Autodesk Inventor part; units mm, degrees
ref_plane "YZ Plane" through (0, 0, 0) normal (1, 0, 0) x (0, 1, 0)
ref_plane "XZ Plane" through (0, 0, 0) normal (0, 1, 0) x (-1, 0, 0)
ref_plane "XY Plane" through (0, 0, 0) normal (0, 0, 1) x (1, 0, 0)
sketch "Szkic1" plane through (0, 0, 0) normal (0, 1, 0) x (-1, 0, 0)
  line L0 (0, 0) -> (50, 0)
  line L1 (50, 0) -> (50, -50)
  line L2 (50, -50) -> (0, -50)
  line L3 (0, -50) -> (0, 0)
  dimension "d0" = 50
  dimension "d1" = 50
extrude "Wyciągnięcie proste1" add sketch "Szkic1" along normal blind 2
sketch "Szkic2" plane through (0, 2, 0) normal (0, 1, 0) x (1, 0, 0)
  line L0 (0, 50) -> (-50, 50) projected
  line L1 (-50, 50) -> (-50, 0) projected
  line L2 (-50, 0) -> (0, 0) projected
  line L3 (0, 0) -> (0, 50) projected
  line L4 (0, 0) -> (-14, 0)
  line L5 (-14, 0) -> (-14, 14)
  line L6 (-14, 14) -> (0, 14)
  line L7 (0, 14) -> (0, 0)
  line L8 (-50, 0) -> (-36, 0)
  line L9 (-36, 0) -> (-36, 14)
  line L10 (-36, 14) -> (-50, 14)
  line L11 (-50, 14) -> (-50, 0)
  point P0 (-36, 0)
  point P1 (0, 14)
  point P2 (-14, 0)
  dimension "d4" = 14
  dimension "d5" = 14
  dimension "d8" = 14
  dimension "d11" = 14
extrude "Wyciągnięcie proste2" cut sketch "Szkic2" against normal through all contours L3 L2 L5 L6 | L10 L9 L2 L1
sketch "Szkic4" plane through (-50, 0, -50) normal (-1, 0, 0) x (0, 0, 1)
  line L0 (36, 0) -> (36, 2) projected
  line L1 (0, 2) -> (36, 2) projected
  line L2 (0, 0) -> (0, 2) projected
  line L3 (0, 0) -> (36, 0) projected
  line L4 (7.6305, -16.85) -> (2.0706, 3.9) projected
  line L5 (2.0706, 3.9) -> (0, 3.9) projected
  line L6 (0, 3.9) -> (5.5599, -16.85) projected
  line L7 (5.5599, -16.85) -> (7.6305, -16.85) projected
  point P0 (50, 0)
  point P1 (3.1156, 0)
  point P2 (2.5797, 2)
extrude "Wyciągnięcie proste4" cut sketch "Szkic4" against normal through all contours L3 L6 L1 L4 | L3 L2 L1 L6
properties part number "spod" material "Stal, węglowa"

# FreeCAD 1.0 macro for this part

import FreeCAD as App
import Part
import Sketcher
from FreeCAD import Vector
Q = App.Units.Quantity

doc = App.newDocument("Part")
body = doc.addObject("PartDesign::Body", "Body")

sketch1 = body.newObject("Sketcher::SketchObject", "Sketch")
sketch1.AttachmentSupport = (doc.getObject("XZ_Plane"), [""])
sketch1.MapMode = "FlatFace"
sketch1.addGeometry([
    Part.LineSegment(Vector(-50, 0, 0), Vector(0, 0, 0)),
    Part.LineSegment(Vector(0, 0, 0), Vector(0, -50, 0)),
    Part.LineSegment(Vector(0, -50, 0), Vector(-50, -50, 0)),
    Part.LineSegment(Vector(-50, -50, 0), Vector(-50, 0, 0)),
], False)
sketch1.addConstraint([
    Sketcher.Constraint("Coincident", 0, 2, 1, 1),
    Sketcher.Constraint("Coincident", 1, 2, 2, 1),
    Sketcher.Constraint("Coincident", 2, 2, 3, 1),
    Sketcher.Constraint("Coincident", 3, 2, 0, 1),
    Sketcher.Constraint("Horizontal", 0),
    Sketcher.Constraint("Vertical", 1),
    Sketcher.Constraint("Horizontal", 2),
    Sketcher.Constraint("Vertical", 3),
    Sketcher.Constraint("Coincident", 0, 2, -1, 1),
    Sketcher.Constraint("Equal", 2, 1),
    Sketcher.Constraint("DistanceX", 0, 1, 0, 2, Q("50 mm")),
])
pad1 = body.newObject("PartDesign::Pad", "Pad")
pad1.Profile = sketch1
pad1.Length = 2
pad1.Reversed = True

sketch2 = body.newObject("Sketcher::SketchObject", "Sketch001")
sketch2.AttachmentSupport = (doc.getObject("XZ_Plane"), [""])
sketch2.MapMode = "FlatFace"
sketch2.AttachmentOffset = App.Placement(Vector(0, 0, -2), App.Rotation())
sketch2.addGeometry([
    Part.LineSegment(Vector(0, 0, 0), Vector(0, -14, 0)),
    Part.LineSegment(Vector(0, -14, 0), Vector(-14, -14, 0)),
    Part.LineSegment(Vector(-14, -14, 0), Vector(-14, 0, 0)),
    Part.LineSegment(Vector(-14, 0, 0), Vector(0, 0, 0)),
    Part.LineSegment(Vector(-36, -14, 0), Vector(-50, -14, 0)),
    Part.LineSegment(Vector(-50, -14, 0), Vector(-50, 0, 0)),
    Part.LineSegment(Vector(-50, 0, 0), Vector(-36, 0, 0)),
    Part.LineSegment(Vector(-36, 0, 0), Vector(-36, -14, 0)),
], False)
sketch2.addConstraint([
    Sketcher.Constraint("Coincident", 0, 2, 1, 1),
    Sketcher.Constraint("Coincident", 1, 2, 2, 1),
    Sketcher.Constraint("Coincident", 2, 2, 3, 1),
    Sketcher.Constraint("Coincident", 3, 2, 0, 1),
    Sketcher.Constraint("Coincident", 4, 2, 5, 1),
    Sketcher.Constraint("Coincident", 5, 2, 6, 1),
    Sketcher.Constraint("Coincident", 6, 2, 7, 1),
    Sketcher.Constraint("Coincident", 7, 2, 4, 1),
    Sketcher.Constraint("Vertical", 0),
    Sketcher.Constraint("Horizontal", 1),
    Sketcher.Constraint("Vertical", 2),
    Sketcher.Constraint("Horizontal", 3),
    Sketcher.Constraint("Horizontal", 4),
    Sketcher.Constraint("Vertical", 5),
    Sketcher.Constraint("Horizontal", 6),
    Sketcher.Constraint("Vertical", 7),
    Sketcher.Constraint("Coincident", 3, 2, -1, 1),
    Sketcher.Constraint("PointOnObject", 5, 2, -1),
    Sketcher.Constraint("Horizontal", 1, 2, 4, 2),
    Sketcher.Constraint("Equal", 3, 4),
    Sketcher.Constraint("Equal", 6, 0),
    Sketcher.Constraint("DistanceX", 1, 2, 1, 1, Q("14 mm")),
    Sketcher.Constraint("DistanceX", 4, 2, -1, 1, Q("50 mm")),
])
pocket1 = body.newObject("PartDesign::Pocket", "Pocket")
pocket1.Profile = sketch2
pocket1.Type = "ThroughAll"
pocket1.Reversed = True

sketch3 = body.newObject("Sketcher::SketchObject", "Sketch002")
sketch3.AttachmentSupport = (doc.getObject("YZ_Plane"), [""])
sketch3.MapMode = "FlatFace"
sketch3.AttachmentOffset = App.Placement(Vector(0, 0, -50), App.Rotation())
sketch3.addGeometry([
    Part.LineSegment(Vector(0, -46.9, 0), Vector(2, -47.4, 0)),
    Part.LineSegment(Vector(2, -47.4, 0), Vector(2, -50, 0)),
    Part.LineSegment(Vector(2, -50, 0), Vector(0, -50, 0)),
    Part.LineSegment(Vector(0, -50, 0), Vector(0, -46.9, 0)),
], False)
sketch3.addConstraint([
    Sketcher.Constraint("Coincident", 0, 2, 1, 1),
    Sketcher.Constraint("Coincident", 1, 2, 2, 1),
    Sketcher.Constraint("Coincident", 2, 2, 3, 1),
    Sketcher.Constraint("Coincident", 3, 2, 0, 1),
    Sketcher.Constraint("Vertical", 1),
    Sketcher.Constraint("Horizontal", 2),
    Sketcher.Constraint("Vertical", 3),
    Sketcher.Constraint("PointOnObject", 2, 2, -2),
    Sketcher.Constraint("DistanceX", 2, 2, 2, 1, Q("2 mm")),
    Sketcher.Constraint("Angle", 0, Q("-15 deg")),
    Sketcher.Constraint("DistanceY", 1, 2, -1, 1, Q("50 mm")),
    Sketcher.Constraint("DistanceY", 1, 2, 1, 1, Q("2.5797 mm")),
])
pocket2 = body.newObject("PartDesign::Pocket", "Pocket001")
pocket2.Profile = sketch3
pocket2.Type = "ThroughAll"
pocket2.Reversed = True

doc.recompute()
